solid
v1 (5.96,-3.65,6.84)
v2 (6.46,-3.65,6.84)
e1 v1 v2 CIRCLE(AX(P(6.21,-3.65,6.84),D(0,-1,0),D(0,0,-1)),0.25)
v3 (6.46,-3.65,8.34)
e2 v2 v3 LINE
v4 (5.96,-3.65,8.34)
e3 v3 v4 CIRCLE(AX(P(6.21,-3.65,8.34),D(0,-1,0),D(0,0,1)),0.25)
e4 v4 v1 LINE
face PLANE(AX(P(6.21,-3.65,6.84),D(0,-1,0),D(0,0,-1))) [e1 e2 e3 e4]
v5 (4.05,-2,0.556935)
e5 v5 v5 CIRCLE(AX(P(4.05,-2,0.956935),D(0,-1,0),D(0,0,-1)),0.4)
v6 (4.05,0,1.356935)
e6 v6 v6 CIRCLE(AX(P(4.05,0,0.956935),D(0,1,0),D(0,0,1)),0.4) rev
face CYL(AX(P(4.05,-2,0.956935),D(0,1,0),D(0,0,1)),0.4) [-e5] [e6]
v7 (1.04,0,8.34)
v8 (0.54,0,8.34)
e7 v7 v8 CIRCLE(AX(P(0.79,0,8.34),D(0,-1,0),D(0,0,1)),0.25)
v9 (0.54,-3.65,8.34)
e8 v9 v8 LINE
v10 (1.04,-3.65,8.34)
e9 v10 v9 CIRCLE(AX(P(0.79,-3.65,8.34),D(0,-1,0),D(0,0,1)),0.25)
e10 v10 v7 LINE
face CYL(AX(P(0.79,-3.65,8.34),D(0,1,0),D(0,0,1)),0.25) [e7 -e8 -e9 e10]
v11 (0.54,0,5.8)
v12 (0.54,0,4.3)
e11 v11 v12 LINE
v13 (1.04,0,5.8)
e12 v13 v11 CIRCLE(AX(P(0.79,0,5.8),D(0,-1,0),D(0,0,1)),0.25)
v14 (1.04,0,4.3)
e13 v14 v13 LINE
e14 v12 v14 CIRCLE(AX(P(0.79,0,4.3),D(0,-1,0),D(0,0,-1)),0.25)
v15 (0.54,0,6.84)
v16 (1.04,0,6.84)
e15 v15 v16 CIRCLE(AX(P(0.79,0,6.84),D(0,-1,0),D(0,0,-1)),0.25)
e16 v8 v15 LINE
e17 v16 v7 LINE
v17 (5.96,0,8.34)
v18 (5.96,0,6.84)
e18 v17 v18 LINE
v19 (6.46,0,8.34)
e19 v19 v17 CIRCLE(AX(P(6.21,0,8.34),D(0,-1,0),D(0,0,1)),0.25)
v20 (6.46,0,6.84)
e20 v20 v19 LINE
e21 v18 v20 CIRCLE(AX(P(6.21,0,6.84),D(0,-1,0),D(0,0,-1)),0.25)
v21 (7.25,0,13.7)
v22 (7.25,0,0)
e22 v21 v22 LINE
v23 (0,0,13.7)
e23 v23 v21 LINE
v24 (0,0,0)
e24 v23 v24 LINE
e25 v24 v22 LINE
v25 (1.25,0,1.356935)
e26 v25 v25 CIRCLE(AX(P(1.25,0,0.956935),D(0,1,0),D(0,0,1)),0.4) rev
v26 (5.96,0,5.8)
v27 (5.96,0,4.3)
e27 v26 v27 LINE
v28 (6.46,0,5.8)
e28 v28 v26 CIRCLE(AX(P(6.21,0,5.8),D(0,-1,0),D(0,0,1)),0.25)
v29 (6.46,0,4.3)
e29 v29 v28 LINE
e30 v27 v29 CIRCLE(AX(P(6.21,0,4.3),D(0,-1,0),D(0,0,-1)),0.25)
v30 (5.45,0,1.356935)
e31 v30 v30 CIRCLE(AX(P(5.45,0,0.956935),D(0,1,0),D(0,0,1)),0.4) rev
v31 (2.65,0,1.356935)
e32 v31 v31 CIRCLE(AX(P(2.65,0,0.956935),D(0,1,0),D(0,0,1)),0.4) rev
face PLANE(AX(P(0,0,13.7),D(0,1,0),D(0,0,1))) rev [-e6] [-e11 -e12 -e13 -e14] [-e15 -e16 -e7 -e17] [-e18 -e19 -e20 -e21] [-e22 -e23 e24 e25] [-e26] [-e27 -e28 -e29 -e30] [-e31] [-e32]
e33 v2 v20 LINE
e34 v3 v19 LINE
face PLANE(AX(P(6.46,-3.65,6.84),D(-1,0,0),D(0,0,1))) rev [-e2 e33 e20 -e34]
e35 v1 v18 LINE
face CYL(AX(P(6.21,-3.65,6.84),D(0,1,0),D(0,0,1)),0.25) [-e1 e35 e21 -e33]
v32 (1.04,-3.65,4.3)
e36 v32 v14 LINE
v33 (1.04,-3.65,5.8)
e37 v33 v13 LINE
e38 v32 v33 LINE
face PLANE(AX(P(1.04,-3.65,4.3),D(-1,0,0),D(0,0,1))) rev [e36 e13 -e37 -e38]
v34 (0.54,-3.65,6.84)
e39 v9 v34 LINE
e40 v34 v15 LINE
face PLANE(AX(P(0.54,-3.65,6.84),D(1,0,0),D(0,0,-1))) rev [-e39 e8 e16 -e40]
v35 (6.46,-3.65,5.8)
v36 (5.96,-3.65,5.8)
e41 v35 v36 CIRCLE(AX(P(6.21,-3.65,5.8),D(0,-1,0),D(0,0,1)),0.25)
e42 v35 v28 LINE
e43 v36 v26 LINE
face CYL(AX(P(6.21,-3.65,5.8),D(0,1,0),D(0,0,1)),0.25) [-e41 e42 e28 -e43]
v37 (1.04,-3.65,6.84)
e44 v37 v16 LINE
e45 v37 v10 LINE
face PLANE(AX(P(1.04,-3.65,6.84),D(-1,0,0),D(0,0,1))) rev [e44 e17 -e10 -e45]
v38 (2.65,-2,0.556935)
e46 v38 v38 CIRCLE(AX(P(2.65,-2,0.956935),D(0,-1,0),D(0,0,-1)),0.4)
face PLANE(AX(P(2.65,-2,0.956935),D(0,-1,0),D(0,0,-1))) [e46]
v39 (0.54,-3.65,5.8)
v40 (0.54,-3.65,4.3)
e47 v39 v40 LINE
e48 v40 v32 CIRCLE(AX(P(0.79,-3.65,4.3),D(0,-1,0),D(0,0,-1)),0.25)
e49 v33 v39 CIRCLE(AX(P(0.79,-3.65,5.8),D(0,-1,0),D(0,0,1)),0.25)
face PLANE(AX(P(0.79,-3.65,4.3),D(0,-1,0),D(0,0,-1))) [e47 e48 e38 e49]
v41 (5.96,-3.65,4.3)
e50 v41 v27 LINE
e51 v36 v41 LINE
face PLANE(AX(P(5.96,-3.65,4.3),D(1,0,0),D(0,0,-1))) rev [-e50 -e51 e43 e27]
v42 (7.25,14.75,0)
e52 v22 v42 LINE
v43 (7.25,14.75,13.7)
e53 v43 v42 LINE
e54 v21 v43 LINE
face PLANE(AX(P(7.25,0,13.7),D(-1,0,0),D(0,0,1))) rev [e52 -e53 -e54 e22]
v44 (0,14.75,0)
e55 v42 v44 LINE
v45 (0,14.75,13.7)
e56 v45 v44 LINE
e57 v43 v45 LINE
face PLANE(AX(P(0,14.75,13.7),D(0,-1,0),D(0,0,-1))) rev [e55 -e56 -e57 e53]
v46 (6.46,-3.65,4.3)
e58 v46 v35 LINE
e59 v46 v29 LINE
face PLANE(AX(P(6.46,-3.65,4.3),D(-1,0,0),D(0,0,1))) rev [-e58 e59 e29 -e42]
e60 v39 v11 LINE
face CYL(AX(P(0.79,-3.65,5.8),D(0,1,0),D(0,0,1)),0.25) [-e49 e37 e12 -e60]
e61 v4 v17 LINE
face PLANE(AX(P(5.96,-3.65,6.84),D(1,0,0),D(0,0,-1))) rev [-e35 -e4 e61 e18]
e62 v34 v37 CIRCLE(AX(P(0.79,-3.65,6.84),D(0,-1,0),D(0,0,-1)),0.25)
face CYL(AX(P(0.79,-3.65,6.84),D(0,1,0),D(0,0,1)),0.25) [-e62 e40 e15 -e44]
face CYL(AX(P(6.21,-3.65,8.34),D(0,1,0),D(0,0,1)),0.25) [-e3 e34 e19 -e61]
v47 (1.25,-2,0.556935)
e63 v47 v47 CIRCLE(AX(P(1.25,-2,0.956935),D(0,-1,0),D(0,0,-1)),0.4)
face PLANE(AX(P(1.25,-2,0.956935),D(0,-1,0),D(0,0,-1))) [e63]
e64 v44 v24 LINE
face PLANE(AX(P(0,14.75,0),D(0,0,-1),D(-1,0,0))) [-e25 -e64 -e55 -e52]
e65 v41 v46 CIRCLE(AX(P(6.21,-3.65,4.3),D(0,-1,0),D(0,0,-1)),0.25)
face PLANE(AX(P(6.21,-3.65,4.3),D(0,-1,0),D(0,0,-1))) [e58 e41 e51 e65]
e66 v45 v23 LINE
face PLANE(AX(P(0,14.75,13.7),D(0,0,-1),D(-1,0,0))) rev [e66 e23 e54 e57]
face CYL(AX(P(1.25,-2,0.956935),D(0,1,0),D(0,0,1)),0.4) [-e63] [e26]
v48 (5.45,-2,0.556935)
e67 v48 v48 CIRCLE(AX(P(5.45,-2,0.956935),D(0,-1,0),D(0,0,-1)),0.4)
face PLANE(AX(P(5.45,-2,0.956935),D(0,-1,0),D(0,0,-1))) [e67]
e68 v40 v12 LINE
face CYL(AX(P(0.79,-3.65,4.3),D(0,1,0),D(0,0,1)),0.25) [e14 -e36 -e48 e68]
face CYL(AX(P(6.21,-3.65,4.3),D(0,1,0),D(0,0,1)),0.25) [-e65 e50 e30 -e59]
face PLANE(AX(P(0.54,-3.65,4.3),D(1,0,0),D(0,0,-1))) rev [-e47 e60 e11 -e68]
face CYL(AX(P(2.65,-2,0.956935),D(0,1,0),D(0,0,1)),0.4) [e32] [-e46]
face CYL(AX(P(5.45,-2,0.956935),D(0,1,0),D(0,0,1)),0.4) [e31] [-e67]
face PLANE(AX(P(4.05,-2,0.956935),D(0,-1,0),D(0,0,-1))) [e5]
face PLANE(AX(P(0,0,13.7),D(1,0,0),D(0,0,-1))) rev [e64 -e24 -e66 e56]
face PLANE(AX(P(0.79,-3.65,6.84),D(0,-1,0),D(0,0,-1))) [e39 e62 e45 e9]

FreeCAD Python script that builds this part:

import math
import FreeCAD as App
import Part
import Sketcher
from FreeCAD import Vector


def add_polygon(sketch, points):
    """Adds a closed chain of lines whose ends are joined by coincident constraints."""
    first, n = sketch.GeometryCount, len(points)
    for a, b in zip(points, points[1:] + points[:1]):
        sketch.addGeometry(Part.LineSegment(App.Vector(*a, 0), App.Vector(*b, 0)), False)
    for i in range(n):
        sketch.addConstraint(Sketcher.Constraint("Coincident", first + i, 2, first + (i + 1) % n, 1))

doc = App.newDocument("Part")
params = doc.addObject("Spreadsheet::Sheet", "Params")
for row, (alias, value) in enumerate([
    ("sketch1_width", "7.25 mm"),
    ("sketch1_height", "14.75 mm"),
    ("pad1_length", "13.7 mm"),
    ("sketch2_radius", "0.25 mm"),
    ("sketch2_height", "1.5 mm"),
    ("pad2_length", "3.65 mm"),
    ("sketch3_diameter", "0.8 mm"),
    ("pad3_length", "2 mm"),
], start=1):
    params.set(f"A{row}", alias)
    params.set(f"B{row}", "=" + value)
    params.setAlias(f"B{row}", alias)

body = doc.addObject("PartDesign::Body", "Body")

# Sketch on XY plane
sketch1 = body.newObject("Sketcher::SketchObject", "Sketch")
sketch1.AttachmentSupport = (doc.getObject("XY_Plane"), [""])
sketch1.MapMode = "FlatFace"
add_polygon(sketch1, [(0, 15), (0, 0), (7, 0), (7, 15)])  # lines 0-3
sketch1.addConstraint(Sketcher.Constraint("Vertical", 0))
sketch1.addConstraint(Sketcher.Constraint("Horizontal", 1))
sketch1.addConstraint(Sketcher.Constraint("Vertical", 2))
sketch1.addConstraint(Sketcher.Constraint("Horizontal", 3))
sketch1.addConstraint(Sketcher.Constraint("Coincident", 0, 2, -1, 1))
sketch1.addConstraint(Sketcher.Constraint("DistanceX", 1, 1, 1, 2, 7.25))
sketch1.addConstraint(Sketcher.Constraint("DistanceY", 0, 2, 0, 1, 14.75))
sketch1.setExpression("Constraints[9]", "Params.sketch1_width")
sketch1.setExpression("Constraints[10]", "Params.sketch1_height")
pad1 = body.newObject("PartDesign::Pad", "Pad")
pad1.Profile = sketch1
pad1.setExpression("Length", "Params.pad1_length")

# Sketch on XZ plane
sketch2 = body.newObject("Sketcher::SketchObject", "Sketch001")
sketch2.AttachmentSupport = (doc.getObject("XZ_Plane"), [""])
sketch2.MapMode = "FlatFace"
sketch2.addGeometry(Part.LineSegment(Vector(1.04, 6.84, 0), Vector(1.04, 8.34, 0)), False)
sketch2.addGeometry(Part.ArcOfCircle(Part.Circle(Vector(0.79, 8.34, 0), Vector(0, 0, 1), 0.25), math.radians(0), math.radians(180)), False)
sketch2.addGeometry(Part.LineSegment(Vector(0.54, 8.34, 0), Vector(0.54, 6.84, 0)), False)
sketch2.addGeometry(Part.ArcOfCircle(Part.Circle(Vector(0.79, 6.84, 0), Vector(0, 0, 1), 0.25), math.radians(180), math.radians(360)), False)
sketch2.addGeometry(Part.LineSegment(Vector(6.46, 6.84, 0), Vector(6.46, 8.34, 0)), False)
sketch2.addGeometry(Part.ArcOfCircle(Part.Circle(Vector(6.21, 8.34, 0), Vector(0, 0, 1), 0.25), math.radians(0), math.radians(180)), False)
sketch2.addGeometry(Part.LineSegment(Vector(5.96, 8.34, 0), Vector(5.96, 6.84, 0)), False)
sketch2.addGeometry(Part.ArcOfCircle(Part.Circle(Vector(6.21, 6.84, 0), Vector(0, 0, 1), 0.25), math.radians(180), math.radians(360)), False)
sketch2.addGeometry(Part.LineSegment(Vector(1.04, 4.3, 0), Vector(1.04, 5.8, 0)), False)
sketch2.addGeometry(Part.ArcOfCircle(Part.Circle(Vector(0.79, 5.8, 0), Vector(0, 0, 1), 0.25), math.radians(0), math.radians(180)), False)
sketch2.addGeometry(Part.LineSegment(Vector(0.54, 5.8, 0), Vector(0.54, 4.3, 0)), False)
sketch2.addGeometry(Part.ArcOfCircle(Part.Circle(Vector(0.79, 4.3, 0), Vector(0, 0, 1), 0.25), math.radians(180), math.radians(360)), False)
sketch2.addGeometry(Part.LineSegment(Vector(5.96, 5.8, 0), Vector(5.96, 4.3, 0)), False)
sketch2.addGeometry(Part.ArcOfCircle(Part.Circle(Vector(6.21, 4.3, 0), Vector(0, 0, 1), 0.25), math.radians(180), math.radians(360)), False)
sketch2.addGeometry(Part.LineSegment(Vector(6.46, 4.3, 0), Vector(6.46, 5.8, 0)), False)
sketch2.addGeometry(Part.ArcOfCircle(Part.Circle(Vector(6.21, 5.8, 0), Vector(0, 0, 1), 0.25), math.radians(0), math.radians(180)), False)
sketch2.addConstraint(Sketcher.Constraint("Tangent", 0, 2, 1, 1))
sketch2.addConstraint(Sketcher.Constraint("Tangent", 1, 2, 2, 1))
sketch2.addConstraint(Sketcher.Constraint("Tangent", 2, 2, 3, 1))
sketch2.addConstraint(Sketcher.Constraint("Tangent", 3, 2, 0, 1))
sketch2.addConstraint(Sketcher.Constraint("Tangent", 4, 2, 5, 1))
sketch2.addConstraint(Sketcher.Constraint("Tangent", 5, 2, 6, 1))
sketch2.addConstraint(Sketcher.Constraint("Tangent", 6, 2, 7, 1))
sketch2.addConstraint(Sketcher.Constraint("Tangent", 7, 2, 4, 1))
sketch2.addConstraint(Sketcher.Constraint("Tangent", 8, 2, 9, 1))
sketch2.addConstraint(Sketcher.Constraint("Tangent", 9, 2, 10, 1))
sketch2.addConstraint(Sketcher.Constraint("Tangent", 10, 2, 11, 1))
sketch2.addConstraint(Sketcher.Constraint("Tangent", 11, 2, 8, 1))
sketch2.addConstraint(Sketcher.Constraint("Tangent", 12, 2, 13, 1))
sketch2.addConstraint(Sketcher.Constraint("Tangent", 13, 2, 14, 1))
sketch2.addConstraint(Sketcher.Constraint("Tangent", 14, 2, 15, 1))
sketch2.addConstraint(Sketcher.Constraint("Tangent", 15, 2, 12, 1))
sketch2.addConstraint(Sketcher.Constraint("Vertical", 0))
sketch2.addConstraint(Sketcher.Constraint("Vertical", 2))
sketch2.addConstraint(Sketcher.Constraint("Vertical", 4))
sketch2.addConstraint(Sketcher.Constraint("Vertical", 6))
sketch2.addConstraint(Sketcher.Constraint("Vertical", 8))
sketch2.addConstraint(Sketcher.Constraint("Vertical", 10))
sketch2.addConstraint(Sketcher.Constraint("Vertical", 12))
sketch2.addConstraint(Sketcher.Constraint("Vertical", 14))
sketch2.addConstraint(Sketcher.Constraint("Equal", 3, 5))
sketch2.addConstraint(Sketcher.Constraint("Equal", 7, 9))
sketch2.addConstraint(Sketcher.Constraint("Equal", 11, 13))
sketch2.addConstraint(Sketcher.Constraint("Horizontal", 1, 3, 5, 3))
sketch2.addConstraint(Sketcher.Constraint("Horizontal", 3, 3, 7, 3))
sketch2.addConstraint(Sketcher.Constraint("Horizontal", 11, 3, 13, 3))
sketch2.addConstraint(Sketcher.Constraint("Horizontal", 9, 3, 15, 3))
sketch2.addConstraint(Sketcher.Constraint("Vertical", 3, 3, 9, 3))
sketch2.addConstraint(Sketcher.Constraint("Vertical", 7, 3, 13, 3))
sketch2.addConstraint(Sketcher.Constraint("Equal", 6, 8))
sketch2.addConstraint(Sketcher.Constraint("Radius", 1, 0.25))
sketch2.addConstraint(Sketcher.Constraint("DistanceY", 0, 1, 0, 2, 1.5))
sketch2.addConstraint(Sketcher.Constraint("DistanceY", -1, 1, 9, 3, 5.8))
sketch2.addConstraint(Sketcher.Constraint("DistanceX", -1, 1, 1, 3, 0.79))
sketch2.addConstraint(Sketcher.Constraint("DistanceY", -1, 1, 1, 3, 8.34))
sketch2.addConstraint(Sketcher.Constraint("DistanceX", -1, 1, 5, 3, 6.21))
sketch2.setExpression("Constraints[34]", "Params.sketch2_radius")
sketch2.setExpression("Constraints[35]", "Params.sketch2_height")
pad2 = body.newObject("PartDesign::Pad", "Pad001")
pad2.Profile = sketch2
pad2.setExpression("Length", "Params.pad2_length")

# Sketch on XZ plane
sketch3 = body.newObject("Sketcher::SketchObject", "Sketch002")
sketch3.AttachmentSupport = (doc.getObject("XZ_Plane"), [""])
sketch3.MapMode = "FlatFace"
sketch3.addGeometry(Part.Circle(Vector(4.05, 0.96, 0), Vector(0, 0, 1), 0.4), False)
sketch3.addGeometry(Part.Circle(Vector(2.65, 0.96, 0), Vector(0, 0, 1), 0.4), False)
sketch3.addGeometry(Part.Circle(Vector(1.25, 0.96, 0), Vector(0, 0, 1), 0.4), False)
sketch3.addGeometry(Part.Circle(Vector(5.45, 0.96, 0), Vector(0, 0, 1), 0.4), False)
sketch3.addConstraint(Sketcher.Constraint("Equal", 0, 1))
sketch3.addConstraint(Sketcher.Constraint("Equal", 1, 2))
sketch3.addConstraint(Sketcher.Constraint("Equal", 2, 3))
sketch3.addConstraint(Sketcher.Constraint("Horizontal", 0, 3, 1, 3))
sketch3.addConstraint(Sketcher.Constraint("Horizontal", 1, 3, 2, 3))
sketch3.addConstraint(Sketcher.Constraint("Horizontal", 2, 3, 3, 3))
sketch3.addConstraint(Sketcher.Constraint("Diameter", 0, 0.8))
sketch3.addConstraint(Sketcher.Constraint("DistanceX", 1, 3, 0, 3, 1.4))
sketch3.addConstraint(Sketcher.Constraint("DistanceX", 2, 3, 1, 3, 1.4))
sketch3.addConstraint(Sketcher.Constraint("DistanceX", 0, 3, 3, 3, 1.4))
sketch3.addConstraint(Sketcher.Constraint("DistanceX", -1, 1, 0, 3, 4.05))
sketch3.addConstraint(Sketcher.Constraint("DistanceY", -1, 1, 0, 3, 0.956935))
sketch3.setExpression("Constraints[6]", "Params.sketch3_diameter")
pad3 = body.newObject("PartDesign::Pad", "Pad002")
pad3.Profile = sketch3
pad3.setExpression("Length", "Params.pad3_length")

doc.recompute()
